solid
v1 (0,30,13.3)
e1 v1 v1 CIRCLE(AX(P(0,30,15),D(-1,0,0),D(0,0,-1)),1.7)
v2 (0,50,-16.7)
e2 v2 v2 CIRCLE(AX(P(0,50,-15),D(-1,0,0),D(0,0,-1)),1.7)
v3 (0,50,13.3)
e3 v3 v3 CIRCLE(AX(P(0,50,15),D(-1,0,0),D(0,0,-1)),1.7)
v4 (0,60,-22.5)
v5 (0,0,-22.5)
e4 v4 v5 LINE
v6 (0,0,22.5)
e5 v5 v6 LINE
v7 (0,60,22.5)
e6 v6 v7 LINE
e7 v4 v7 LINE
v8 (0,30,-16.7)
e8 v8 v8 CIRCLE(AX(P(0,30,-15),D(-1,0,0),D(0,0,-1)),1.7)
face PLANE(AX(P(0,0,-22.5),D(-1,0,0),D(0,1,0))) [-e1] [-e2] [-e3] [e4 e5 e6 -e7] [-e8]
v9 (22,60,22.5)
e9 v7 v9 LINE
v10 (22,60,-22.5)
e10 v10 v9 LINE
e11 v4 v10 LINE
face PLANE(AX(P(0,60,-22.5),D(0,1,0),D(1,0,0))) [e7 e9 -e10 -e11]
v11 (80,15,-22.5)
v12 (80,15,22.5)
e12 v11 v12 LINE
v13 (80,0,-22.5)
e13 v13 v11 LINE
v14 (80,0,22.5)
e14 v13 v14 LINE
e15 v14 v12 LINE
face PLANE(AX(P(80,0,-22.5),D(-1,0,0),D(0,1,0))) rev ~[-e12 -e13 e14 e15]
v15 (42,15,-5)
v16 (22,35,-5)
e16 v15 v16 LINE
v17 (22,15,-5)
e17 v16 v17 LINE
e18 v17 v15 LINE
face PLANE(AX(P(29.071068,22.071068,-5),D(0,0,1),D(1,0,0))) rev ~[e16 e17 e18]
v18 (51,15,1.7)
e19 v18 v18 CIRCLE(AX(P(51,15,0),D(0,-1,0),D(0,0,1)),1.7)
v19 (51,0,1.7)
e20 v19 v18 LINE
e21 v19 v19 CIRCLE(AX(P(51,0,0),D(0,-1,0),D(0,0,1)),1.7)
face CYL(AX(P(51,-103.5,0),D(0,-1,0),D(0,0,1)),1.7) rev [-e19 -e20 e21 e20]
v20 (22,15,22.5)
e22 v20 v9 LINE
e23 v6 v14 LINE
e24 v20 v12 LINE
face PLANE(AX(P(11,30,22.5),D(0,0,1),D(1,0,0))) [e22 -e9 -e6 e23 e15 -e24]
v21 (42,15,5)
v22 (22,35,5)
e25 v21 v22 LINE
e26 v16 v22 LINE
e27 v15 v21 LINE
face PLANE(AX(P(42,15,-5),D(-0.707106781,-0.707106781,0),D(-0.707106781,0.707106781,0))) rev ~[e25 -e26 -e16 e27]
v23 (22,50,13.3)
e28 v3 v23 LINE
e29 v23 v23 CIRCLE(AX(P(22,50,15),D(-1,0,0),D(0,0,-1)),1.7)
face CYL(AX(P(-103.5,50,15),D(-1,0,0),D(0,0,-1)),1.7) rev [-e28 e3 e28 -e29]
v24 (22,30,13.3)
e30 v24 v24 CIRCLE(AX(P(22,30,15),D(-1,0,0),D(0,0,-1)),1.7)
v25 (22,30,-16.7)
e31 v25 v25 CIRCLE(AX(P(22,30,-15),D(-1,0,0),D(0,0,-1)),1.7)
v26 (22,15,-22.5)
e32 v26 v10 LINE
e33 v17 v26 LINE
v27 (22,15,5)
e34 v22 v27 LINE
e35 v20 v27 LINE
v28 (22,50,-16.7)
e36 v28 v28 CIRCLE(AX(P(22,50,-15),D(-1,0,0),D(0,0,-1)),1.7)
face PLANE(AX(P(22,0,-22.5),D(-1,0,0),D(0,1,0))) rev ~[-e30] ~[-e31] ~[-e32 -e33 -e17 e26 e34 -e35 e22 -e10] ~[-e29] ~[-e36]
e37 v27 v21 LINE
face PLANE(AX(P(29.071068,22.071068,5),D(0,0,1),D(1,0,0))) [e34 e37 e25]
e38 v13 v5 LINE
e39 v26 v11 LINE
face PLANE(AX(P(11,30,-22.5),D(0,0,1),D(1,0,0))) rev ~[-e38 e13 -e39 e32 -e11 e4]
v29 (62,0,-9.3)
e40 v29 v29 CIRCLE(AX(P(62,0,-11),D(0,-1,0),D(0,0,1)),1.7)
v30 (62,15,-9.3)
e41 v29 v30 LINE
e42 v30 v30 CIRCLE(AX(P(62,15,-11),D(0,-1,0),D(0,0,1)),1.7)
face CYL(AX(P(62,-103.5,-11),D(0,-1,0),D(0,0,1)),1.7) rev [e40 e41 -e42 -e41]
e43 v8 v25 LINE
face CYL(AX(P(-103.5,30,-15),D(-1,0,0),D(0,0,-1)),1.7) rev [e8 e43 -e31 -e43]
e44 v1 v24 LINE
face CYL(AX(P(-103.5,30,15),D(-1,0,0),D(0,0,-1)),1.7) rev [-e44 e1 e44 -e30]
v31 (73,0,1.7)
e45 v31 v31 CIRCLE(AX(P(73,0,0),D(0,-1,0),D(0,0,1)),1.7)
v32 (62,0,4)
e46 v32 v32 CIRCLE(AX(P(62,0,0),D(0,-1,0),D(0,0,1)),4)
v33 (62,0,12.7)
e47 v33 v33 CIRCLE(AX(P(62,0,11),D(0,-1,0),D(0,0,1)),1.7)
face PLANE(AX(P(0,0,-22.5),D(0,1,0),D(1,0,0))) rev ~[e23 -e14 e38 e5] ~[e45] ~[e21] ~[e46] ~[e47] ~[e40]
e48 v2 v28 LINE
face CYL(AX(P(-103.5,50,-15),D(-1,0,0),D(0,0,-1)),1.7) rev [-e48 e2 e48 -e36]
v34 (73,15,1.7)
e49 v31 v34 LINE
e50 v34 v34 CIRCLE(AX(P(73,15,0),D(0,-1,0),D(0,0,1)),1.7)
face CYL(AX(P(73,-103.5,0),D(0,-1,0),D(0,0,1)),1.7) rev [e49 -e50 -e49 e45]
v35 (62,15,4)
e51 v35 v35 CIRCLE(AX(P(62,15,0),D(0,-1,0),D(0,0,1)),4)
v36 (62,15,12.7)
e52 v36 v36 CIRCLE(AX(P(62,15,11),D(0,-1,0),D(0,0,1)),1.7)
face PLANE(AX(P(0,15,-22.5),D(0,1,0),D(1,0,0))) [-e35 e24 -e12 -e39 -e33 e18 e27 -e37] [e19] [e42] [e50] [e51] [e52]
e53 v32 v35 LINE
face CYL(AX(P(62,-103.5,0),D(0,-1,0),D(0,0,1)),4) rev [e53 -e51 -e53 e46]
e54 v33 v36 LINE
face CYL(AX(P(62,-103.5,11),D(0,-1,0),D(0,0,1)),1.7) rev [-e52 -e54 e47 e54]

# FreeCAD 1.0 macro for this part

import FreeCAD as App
import Part
import Sketcher

V = App.Vector

doc = App.newDocument("Part")
body = doc.addObject("PartDesign::Body", "Body")

sketch1 = body.newObject("Sketcher::SketchObject", "Sketch")
sketch1.AttachmentSupport = (doc.getObject("XY_Plane"), [""])
sketch1.MapMode = "FlatFace"
sketch1.addGeometry(Part.LineSegment(V(0, 60, 0), V(0, 0, 0)), False)
sketch1.addGeometry(Part.LineSegment(V(0, 0, 0), V(22, 0, 0)), False)
sketch1.addGeometry(Part.LineSegment(V(22, 0, 0), V(22, 60, 0)), False)
sketch1.addGeometry(Part.LineSegment(V(22, 60, 0), V(0, 60, 0)), False)
sketch1.addConstraint(Sketcher.Constraint("Coincident", 0, 2, 1, 1))
sketch1.addConstraint(Sketcher.Constraint("Coincident", 1, 2, 2, 1))
sketch1.addConstraint(Sketcher.Constraint("Coincident", 2, 2, 3, 1))
sketch1.addConstraint(Sketcher.Constraint("Coincident", 3, 2, 0, 1))
sketch1.addConstraint(Sketcher.Constraint("Vertical", 0))
sketch1.addConstraint(Sketcher.Constraint("Horizontal", 1))
sketch1.addConstraint(Sketcher.Constraint("Vertical", 2))
sketch1.addConstraint(Sketcher.Constraint("Horizontal", 3))
sketch1.addConstraint(Sketcher.Constraint("Coincident", 0, 2, -1, 1))
sketch1.addConstraint(Sketcher.Constraint("DistanceX", 1, 1, 1, 2, 22.0))
sketch1.addConstraint(Sketcher.Constraint("DistanceY", 0, 2, 0, 1, 60.0))
pad1 = body.newObject("PartDesign::Pad", "Pad")
pad1.Profile = sketch1
pad1.Type = "TwoLengths"
pad1.Length = 22.5
pad1.Length2 = 22.5

sketch2 = body.newObject("Sketcher::SketchObject", "Sketch001")
sketch2.AttachmentSupport = (doc.getObject("XY_Plane"), [""])
sketch2.MapMode = "FlatFace"
sketch2.addGeometry(Part.LineSegment(V(0, 15, 0), V(0, 0, 0)), False)
sketch2.addGeometry(Part.LineSegment(V(0, 0, 0), V(80, 0, 0)), False)
sketch2.addGeometry(Part.LineSegment(V(80, 0, 0), V(80, 15, 0)), False)
sketch2.addGeometry(Part.LineSegment(V(80, 15, 0), V(0, 15, 0)), False)
sketch2.addConstraint(Sketcher.Constraint("Coincident", 0, 2, 1, 1))
sketch2.addConstraint(Sketcher.Constraint("Coincident", 1, 2, 2, 1))
sketch2.addConstraint(Sketcher.Constraint("Coincident", 2, 2, 3, 1))
sketch2.addConstraint(Sketcher.Constraint("Coincident", 3, 2, 0, 1))
sketch2.addConstraint(Sketcher.Constraint("Vertical", 0))
sketch2.addConstraint(Sketcher.Constraint("Horizontal", 1))
sketch2.addConstraint(Sketcher.Constraint("Vertical", 2))
sketch2.addConstraint(Sketcher.Constraint("Horizontal", 3))
sketch2.addConstraint(Sketcher.Constraint("Coincident", 0, 2, -1, 1))
sketch2.addConstraint(Sketcher.Constraint("DistanceX", 1, 1, 1, 2, 80.0))
sketch2.addConstraint(Sketcher.Constraint("DistanceY", 0, 2, 0, 1, 15.0))
pad2 = body.newObject("PartDesign::Pad", "Pad001")
pad2.Profile = sketch2
pad2.Type = "TwoLengths"
pad2.Length = 22.5
pad2.Length2 = 22.5

sketch3 = body.newObject("Sketcher::SketchObject", "Sketch002")
sketch3.AttachmentSupport = (doc.getObject("XZ_Plane"), [""])
sketch3.MapMode = "FlatFace"
sketch3.addGeometry(Part.Circle(V(62, 0, 0), V(0, 0, 1), 4), False)
sketch3.addGeometry(Part.Circle(V(73, 0, 0), V(0, 0, 1), 1.7), False)
sketch3.addGeometry(Part.Circle(V(51, 0, 0), V(0, 0, 1), 1.7), False)
sketch3.addGeometry(Part.Circle(V(62, -11, 0), V(0, 0, 1), 1.7), False)
sketch3.addGeometry(Part.Circle(V(62, 11, 0), V(0, 0, 1), 1.7), False)
sketch3.addConstraint(Sketcher.Constraint("Equal", 1, 2))
sketch3.addConstraint(Sketcher.Constraint("Equal", 2, 3))
sketch3.addConstraint(Sketcher.Constraint("Equal", 3, 4))
sketch3.addConstraint(Sketcher.Constraint("Symmetric", 3, 3, 4, 3, -1))
sketch3.addConstraint(Sketcher.Constraint("PointOnObject", 0, 3, -1))
sketch3.addConstraint(Sketcher.Constraint("PointOnObject", 1, 3, -1))
sketch3.addConstraint(Sketcher.Constraint("PointOnObject", 2, 3, -1))
sketch3.addConstraint(Sketcher.Constraint("Vertical", 0, 3, 3, 3))
sketch3.addConstraint(Sketcher.Constraint("Diameter", 0, 8.0))
sketch3.addConstraint(Sketcher.Constraint("Diameter", 1, 3.4))
sketch3.addConstraint(Sketcher.Constraint("DistanceX", -1, 1, 0, 3, 62.0))
sketch3.addConstraint(Sketcher.Constraint("DistanceX", -1, 1, 1, 3, 73.0))
sketch3.addConstraint(Sketcher.Constraint("DistanceX", -1, 1, 2, 3, 51.0))
sketch3.addConstraint(Sketcher.Constraint("DistanceY", 3, 3, -1, 1, 11.0))
pocket1 = body.newObject("PartDesign::Pocket", "Pocket")
pocket1.Profile = sketch3
pocket1.Type = "ThroughAll"
pocket1.Midplane = True

sketch4 = body.newObject("Sketcher::SketchObject", "Sketch003")
sketch4.AttachmentSupport = (doc.getObject("YZ_Plane"), [""])
sketch4.MapMode = "FlatFace"
sketch4.addGeometry(Part.Circle(V(30, -15, 0), V(0, 0, 1), 1.7), False)
sketch4.addGeometry(Part.Circle(V(30, 15, 0), V(0, 0, 1), 1.7), False)
sketch4.addGeometry(Part.Circle(V(50, -15, 0), V(0, 0, 1), 1.7), False)
sketch4.addGeometry(Part.Circle(V(50, 15, 0), V(0, 0, 1), 1.7), False)
sketch4.addConstraint(Sketcher.Constraint("Equal", 0, 1))
sketch4.addConstraint(Sketcher.Constraint("Equal", 1, 2))
sketch4.addConstraint(Sketcher.Constraint("Equal", 2, 3))
sketch4.addConstraint(Sketcher.Constraint("Symmetric", 0, 3, 1, 3, -1))
sketch4.addConstraint(Sketcher.Constraint("Symmetric", 2, 3, 3, 3, -1))
sketch4.addConstraint(Sketcher.Constraint("Horizontal", 0, 3, 2, 3))
sketch4.addConstraint(Sketcher.Constraint("Diameter", 0, 3.4))
sketch4.addConstraint(Sketcher.Constraint("DistanceX", -1, 1, 0, 3, 30.0))
sketch4.addConstraint(Sketcher.Constraint("DistanceY", 0, 3, -1, 1, 15.0))
sketch4.addConstraint(Sketcher.Constraint("DistanceX", -1, 1, 2, 3, 50.0))
pocket2 = body.newObject("PartDesign::Pocket", "Pocket001")
pocket2.Profile = sketch4
pocket2.Type = "ThroughAll"
pocket2.Midplane = True

sketch5 = body.newObject("Sketcher::SketchObject", "Sketch004")
sketch5.AttachmentSupport = (doc.getObject("XY_Plane"), [""])
sketch5.MapMode = "FlatFace"
sketch5.addGeometry(Part.LineSegment(V(22, 15, 0), V(42, 15, 0)), False)
sketch5.addGeometry(Part.LineSegment(V(42, 15, 0), V(22, 35, 0)), False)
sketch5.addGeometry(Part.LineSegment(V(22, 35, 0), V(22, 15, 0)), False)
sketch5.addConstraint(Sketcher.Constraint("Coincident", 0, 2, 1, 1))
sketch5.addConstraint(Sketcher.Constraint("Coincident", 1, 2, 2, 1))
sketch5.addConstraint(Sketcher.Constraint("Coincident", 2, 2, 0, 1))
sketch5.addConstraint(Sketcher.Constraint("Horizontal", 0))
sketch5.addConstraint(Sketcher.Constraint("Vertical", 2))
sketch5.addConstraint(Sketcher.Constraint("Equal", 0, 2))
sketch5.addConstraint(Sketcher.Constraint("DistanceX", 0, 1, 0, 2, 20.0))
sketch5.addConstraint(Sketcher.Constraint("DistanceX", -1, 1, 0, 2, 42.0))
sketch5.addConstraint(Sketcher.Constraint("DistanceY", -1, 1, 0, 2, 15.0))
pad3 = body.newObject("PartDesign::Pad", "Pad002")
pad3.Profile = sketch5
pad3.Type = "TwoLengths"
pad3.Length = 5
pad3.Length2 = 5

doc.recompute()
